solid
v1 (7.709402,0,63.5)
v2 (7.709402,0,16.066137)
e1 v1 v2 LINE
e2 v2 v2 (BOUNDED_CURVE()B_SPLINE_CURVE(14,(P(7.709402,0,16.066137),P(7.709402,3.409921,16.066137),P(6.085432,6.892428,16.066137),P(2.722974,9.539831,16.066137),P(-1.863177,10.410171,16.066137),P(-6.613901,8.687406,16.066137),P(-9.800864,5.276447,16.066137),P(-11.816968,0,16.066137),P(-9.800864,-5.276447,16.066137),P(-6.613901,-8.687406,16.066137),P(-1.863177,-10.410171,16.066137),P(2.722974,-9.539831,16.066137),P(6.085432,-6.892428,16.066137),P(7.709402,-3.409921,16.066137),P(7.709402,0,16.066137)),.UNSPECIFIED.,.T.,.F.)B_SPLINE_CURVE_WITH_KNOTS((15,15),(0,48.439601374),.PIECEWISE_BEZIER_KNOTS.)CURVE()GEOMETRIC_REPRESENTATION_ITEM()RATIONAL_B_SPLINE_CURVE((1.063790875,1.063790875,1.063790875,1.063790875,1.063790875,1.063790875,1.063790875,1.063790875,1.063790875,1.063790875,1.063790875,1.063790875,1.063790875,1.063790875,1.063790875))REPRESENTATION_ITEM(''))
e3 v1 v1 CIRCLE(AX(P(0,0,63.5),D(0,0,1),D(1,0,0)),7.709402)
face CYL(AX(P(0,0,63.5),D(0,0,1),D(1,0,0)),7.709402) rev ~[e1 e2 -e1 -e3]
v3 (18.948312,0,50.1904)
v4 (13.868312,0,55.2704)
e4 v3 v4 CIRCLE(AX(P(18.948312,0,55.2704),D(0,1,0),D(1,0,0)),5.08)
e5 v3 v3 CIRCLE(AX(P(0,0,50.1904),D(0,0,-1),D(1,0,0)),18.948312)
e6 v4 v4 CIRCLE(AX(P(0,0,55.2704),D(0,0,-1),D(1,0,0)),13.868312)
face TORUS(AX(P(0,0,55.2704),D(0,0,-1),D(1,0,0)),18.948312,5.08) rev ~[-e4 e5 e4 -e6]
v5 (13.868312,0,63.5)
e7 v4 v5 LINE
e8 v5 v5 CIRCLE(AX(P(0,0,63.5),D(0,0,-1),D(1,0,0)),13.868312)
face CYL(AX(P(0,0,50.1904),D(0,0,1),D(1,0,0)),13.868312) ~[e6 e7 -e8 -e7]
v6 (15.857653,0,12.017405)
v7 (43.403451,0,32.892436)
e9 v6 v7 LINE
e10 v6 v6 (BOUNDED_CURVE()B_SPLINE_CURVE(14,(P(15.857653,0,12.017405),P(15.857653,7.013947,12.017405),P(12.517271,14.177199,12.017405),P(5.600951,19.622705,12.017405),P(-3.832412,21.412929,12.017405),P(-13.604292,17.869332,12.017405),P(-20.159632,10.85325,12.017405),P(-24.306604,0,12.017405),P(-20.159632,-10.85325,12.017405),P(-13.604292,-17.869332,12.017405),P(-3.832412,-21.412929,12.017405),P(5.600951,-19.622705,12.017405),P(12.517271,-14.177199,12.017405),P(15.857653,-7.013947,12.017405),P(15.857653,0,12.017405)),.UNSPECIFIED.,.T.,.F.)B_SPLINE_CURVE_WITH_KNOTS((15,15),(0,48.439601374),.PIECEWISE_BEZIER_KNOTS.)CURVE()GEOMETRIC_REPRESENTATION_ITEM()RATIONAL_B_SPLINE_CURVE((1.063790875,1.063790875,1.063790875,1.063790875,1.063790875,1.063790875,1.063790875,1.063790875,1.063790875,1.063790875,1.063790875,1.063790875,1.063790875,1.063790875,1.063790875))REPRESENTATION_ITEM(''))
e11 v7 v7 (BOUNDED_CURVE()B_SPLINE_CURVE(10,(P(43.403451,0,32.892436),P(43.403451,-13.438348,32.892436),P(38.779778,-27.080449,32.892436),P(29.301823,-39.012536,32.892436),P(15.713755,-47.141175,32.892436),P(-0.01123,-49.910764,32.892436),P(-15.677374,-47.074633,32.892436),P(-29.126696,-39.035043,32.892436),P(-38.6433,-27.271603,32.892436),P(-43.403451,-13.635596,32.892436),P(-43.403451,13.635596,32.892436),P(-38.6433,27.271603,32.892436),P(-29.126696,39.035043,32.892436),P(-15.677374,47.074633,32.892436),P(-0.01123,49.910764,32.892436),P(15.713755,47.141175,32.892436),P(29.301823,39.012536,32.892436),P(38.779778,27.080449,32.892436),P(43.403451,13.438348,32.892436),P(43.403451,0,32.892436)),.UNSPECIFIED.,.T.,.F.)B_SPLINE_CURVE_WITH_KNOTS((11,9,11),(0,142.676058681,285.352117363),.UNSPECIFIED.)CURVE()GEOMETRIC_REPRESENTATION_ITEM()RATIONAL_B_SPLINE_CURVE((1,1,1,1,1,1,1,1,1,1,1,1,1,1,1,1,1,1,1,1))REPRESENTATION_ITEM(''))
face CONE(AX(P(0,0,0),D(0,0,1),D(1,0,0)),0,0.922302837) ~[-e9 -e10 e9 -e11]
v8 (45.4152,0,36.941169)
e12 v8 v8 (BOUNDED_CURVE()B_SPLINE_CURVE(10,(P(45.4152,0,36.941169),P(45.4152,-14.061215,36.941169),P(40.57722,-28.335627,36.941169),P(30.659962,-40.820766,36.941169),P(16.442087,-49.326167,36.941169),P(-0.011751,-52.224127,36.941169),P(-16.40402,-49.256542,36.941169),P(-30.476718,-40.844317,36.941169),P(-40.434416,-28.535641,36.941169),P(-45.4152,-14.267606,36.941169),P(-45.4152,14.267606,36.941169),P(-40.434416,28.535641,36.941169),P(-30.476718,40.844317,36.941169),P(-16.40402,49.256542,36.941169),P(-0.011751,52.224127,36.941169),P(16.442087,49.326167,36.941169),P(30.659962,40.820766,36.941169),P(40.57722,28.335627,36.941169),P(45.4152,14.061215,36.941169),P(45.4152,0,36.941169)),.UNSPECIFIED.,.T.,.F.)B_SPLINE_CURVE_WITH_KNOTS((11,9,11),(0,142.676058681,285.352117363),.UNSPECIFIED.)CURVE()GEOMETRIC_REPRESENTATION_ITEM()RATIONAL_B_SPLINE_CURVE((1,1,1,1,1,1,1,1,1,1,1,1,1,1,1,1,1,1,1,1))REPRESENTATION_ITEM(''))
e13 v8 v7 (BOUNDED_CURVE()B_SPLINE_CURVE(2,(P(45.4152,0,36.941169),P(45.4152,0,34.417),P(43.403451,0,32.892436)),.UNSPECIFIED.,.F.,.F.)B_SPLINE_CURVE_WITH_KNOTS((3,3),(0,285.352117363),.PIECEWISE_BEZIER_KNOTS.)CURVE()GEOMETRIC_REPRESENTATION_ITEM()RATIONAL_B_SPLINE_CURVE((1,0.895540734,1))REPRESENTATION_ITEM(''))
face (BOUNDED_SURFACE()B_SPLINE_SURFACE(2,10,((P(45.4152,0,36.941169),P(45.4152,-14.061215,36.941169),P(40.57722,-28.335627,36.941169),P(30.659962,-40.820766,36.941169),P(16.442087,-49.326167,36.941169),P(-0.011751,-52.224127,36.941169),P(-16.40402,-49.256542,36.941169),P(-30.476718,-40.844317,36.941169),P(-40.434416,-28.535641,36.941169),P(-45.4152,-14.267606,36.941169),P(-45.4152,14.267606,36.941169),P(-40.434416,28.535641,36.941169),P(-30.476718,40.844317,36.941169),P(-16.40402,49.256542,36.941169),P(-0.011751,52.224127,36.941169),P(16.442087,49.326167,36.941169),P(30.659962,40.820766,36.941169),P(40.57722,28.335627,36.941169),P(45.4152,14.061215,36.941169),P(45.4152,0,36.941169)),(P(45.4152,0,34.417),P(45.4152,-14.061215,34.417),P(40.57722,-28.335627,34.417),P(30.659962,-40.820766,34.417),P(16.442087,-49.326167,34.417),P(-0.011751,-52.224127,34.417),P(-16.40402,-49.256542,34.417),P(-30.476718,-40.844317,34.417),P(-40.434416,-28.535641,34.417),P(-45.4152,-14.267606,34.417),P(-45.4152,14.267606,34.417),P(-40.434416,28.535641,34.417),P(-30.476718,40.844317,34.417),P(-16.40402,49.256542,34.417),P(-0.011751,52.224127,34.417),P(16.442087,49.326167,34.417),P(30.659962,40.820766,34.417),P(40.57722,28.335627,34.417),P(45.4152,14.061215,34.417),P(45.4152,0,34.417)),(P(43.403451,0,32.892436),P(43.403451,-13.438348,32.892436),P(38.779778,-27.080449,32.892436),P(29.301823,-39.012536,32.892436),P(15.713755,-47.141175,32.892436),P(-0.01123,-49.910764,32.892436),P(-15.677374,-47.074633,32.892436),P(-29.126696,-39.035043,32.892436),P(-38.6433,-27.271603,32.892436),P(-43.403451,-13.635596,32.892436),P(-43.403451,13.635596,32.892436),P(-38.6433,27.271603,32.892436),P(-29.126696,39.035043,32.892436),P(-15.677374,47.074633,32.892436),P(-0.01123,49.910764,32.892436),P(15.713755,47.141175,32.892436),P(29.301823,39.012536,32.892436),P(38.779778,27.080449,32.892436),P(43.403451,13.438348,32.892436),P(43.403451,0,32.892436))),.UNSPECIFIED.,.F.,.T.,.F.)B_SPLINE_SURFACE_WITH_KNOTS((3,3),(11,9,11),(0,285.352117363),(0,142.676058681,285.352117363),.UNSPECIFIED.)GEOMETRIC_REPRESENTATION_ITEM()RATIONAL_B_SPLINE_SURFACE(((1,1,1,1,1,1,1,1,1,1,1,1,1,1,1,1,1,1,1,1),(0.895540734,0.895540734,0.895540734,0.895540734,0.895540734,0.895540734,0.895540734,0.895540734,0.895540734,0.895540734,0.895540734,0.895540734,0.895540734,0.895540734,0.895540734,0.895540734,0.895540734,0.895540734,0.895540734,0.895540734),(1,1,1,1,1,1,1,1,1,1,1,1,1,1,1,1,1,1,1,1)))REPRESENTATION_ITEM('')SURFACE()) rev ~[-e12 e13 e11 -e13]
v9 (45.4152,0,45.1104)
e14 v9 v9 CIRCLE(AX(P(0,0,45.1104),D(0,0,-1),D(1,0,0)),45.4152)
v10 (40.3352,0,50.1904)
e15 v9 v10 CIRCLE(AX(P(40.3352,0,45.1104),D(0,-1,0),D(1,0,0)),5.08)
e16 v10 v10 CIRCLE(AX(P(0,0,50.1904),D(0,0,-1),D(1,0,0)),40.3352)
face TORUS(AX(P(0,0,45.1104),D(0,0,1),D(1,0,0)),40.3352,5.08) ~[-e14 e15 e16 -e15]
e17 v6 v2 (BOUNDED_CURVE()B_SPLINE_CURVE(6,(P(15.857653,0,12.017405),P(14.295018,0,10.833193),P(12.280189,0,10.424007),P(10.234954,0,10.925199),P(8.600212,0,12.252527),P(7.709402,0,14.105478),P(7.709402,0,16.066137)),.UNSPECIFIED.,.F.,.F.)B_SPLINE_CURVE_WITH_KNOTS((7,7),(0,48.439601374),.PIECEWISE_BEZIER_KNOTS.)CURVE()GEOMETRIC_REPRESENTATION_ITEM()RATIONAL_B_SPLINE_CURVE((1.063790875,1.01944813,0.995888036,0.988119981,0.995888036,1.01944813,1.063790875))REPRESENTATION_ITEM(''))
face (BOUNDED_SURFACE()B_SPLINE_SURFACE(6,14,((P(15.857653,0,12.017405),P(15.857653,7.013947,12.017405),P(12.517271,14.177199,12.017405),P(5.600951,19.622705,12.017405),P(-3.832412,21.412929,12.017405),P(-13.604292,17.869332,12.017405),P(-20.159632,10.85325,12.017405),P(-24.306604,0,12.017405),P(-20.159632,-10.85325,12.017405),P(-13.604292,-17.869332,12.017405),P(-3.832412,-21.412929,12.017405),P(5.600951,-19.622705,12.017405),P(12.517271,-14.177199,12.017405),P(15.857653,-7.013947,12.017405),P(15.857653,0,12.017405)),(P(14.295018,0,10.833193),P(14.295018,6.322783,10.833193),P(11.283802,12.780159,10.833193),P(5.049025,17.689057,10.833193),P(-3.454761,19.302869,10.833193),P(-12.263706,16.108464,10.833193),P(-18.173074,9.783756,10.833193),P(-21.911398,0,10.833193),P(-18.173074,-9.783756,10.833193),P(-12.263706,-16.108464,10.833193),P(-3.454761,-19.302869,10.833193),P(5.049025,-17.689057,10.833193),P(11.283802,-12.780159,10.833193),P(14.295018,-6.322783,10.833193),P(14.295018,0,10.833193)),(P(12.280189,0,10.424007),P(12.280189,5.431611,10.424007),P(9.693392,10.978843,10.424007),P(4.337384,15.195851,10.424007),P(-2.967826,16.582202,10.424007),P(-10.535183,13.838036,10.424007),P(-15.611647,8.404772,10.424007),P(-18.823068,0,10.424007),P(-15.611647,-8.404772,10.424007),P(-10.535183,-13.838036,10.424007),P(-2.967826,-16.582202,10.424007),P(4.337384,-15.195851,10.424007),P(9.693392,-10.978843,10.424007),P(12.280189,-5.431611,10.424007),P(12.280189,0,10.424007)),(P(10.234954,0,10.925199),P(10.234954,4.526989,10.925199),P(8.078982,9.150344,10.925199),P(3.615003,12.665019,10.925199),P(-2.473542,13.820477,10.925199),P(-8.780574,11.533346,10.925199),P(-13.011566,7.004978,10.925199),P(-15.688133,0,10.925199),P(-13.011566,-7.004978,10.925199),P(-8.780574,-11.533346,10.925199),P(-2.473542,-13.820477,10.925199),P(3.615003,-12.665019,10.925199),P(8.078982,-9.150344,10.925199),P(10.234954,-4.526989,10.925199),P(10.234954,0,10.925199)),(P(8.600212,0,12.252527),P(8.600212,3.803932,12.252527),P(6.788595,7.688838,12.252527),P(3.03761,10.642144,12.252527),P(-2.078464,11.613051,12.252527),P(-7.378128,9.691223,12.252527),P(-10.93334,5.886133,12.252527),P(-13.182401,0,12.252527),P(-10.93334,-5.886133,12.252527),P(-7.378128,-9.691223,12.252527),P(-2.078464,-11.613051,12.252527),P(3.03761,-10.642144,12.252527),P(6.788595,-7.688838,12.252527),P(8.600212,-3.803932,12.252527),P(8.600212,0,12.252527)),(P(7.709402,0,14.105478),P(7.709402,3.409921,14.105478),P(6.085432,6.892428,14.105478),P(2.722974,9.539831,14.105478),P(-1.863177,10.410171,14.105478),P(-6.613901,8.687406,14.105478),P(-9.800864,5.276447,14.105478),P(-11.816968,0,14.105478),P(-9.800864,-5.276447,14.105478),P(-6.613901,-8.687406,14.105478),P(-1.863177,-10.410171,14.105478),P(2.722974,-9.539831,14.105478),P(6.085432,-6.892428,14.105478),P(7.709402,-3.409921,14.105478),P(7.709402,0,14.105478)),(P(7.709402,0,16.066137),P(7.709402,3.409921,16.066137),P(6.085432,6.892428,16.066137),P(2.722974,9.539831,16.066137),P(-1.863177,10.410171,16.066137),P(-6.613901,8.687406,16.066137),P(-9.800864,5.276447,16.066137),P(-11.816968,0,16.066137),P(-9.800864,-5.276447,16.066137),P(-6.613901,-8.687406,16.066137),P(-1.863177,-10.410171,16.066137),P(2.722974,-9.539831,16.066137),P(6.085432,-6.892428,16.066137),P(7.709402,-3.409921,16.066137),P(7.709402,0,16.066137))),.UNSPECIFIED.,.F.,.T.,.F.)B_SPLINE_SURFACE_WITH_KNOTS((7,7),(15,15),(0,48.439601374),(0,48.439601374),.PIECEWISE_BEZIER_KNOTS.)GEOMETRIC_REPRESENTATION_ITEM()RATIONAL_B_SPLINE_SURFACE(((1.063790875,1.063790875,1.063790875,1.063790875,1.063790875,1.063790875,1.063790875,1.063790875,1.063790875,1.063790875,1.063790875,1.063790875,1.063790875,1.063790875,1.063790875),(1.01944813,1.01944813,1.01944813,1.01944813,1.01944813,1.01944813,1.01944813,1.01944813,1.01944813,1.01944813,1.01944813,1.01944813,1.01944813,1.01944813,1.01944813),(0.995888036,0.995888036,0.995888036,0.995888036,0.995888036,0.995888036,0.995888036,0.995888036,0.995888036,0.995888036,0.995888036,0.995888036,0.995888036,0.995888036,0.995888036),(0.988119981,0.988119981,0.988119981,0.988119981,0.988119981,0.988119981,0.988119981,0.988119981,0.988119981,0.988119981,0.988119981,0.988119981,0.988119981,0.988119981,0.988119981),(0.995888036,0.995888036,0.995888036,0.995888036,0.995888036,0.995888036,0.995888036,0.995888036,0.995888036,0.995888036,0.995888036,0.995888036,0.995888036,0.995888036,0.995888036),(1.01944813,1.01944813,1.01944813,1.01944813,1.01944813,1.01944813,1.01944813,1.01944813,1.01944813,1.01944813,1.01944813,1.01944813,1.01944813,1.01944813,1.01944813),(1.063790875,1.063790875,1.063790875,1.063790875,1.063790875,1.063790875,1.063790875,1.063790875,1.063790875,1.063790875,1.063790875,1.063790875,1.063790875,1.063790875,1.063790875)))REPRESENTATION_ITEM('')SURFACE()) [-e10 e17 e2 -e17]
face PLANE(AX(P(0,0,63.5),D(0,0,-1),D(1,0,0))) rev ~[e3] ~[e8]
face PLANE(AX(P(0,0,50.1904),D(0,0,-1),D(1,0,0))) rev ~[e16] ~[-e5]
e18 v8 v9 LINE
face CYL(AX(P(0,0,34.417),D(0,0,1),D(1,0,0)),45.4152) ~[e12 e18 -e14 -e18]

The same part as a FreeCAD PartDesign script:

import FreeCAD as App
import Part
import Sketcher
Q = App.Units.Quantity


def edges_at(feature, points):
    """Names of the edges that pass closest to the given points."""
    edges = feature.Shape.Edges
    near = lambda p: min(range(len(edges)), key=lambda i: edges[i].distToShape(Part.Vertex(*p))[0])
    return sorted({f"Edge{near(p) + 1}" for p in points})

doc = App.newDocument("Part")
body = doc.addObject("PartDesign::Body", "Body")

sketch1 = body.newObject("Sketcher::SketchObject", "Sketch")
sketch1.AttachmentSupport = (doc.getObject("XZ_Plane"), [""])
sketch1.MapMode = "FlatFace"
sketch1.addGeometry([
    Part.LineSegment(App.Vector(0, 64, 0), App.Vector(0, 0, 0)),
    Part.LineSegment(App.Vector(0, 0, 0), App.Vector(45, 34, 0)),
    Part.LineSegment(App.Vector(45, 34, 0), App.Vector(45, 50, 0)),
    Part.LineSegment(App.Vector(45, 50, 0), App.Vector(14, 50, 0)),
    Part.LineSegment(App.Vector(14, 50, 0), App.Vector(14, 64, 0)),
    Part.LineSegment(App.Vector(14, 64, 0), App.Vector(0, 64, 0)),
], False)
sketch1.addConstraint([
    Sketcher.Constraint("Coincident", 0, 2, 1, 1),
    Sketcher.Constraint("Coincident", 1, 2, 2, 1),
    Sketcher.Constraint("Coincident", 2, 2, 3, 1),
    Sketcher.Constraint("Coincident", 3, 2, 4, 1),
    Sketcher.Constraint("Coincident", 4, 2, 5, 1),
    Sketcher.Constraint("Coincident", 5, 2, 0, 1),
    Sketcher.Constraint("Vertical", 0),
    Sketcher.Constraint("Vertical", 2),
    Sketcher.Constraint("Horizontal", 3),
    Sketcher.Constraint("Vertical", 4),
    Sketcher.Constraint("Horizontal", 5),
    Sketcher.Constraint("Coincident", 0, 2, -1, 1),
    Sketcher.Constraint("DistanceY", 0, 2, 0, 1, Q("2.5 in")),
    Sketcher.Constraint("DistanceY", 2, 1, 2, 2, Q("0.621 in")),
    Sketcher.Constraint("DistanceY", 4, 1, 4, 2, Q("0.524 in")),
    Sketcher.Constraint("DistanceX", -1, 1, 1, 2, Q("1.788 in")),
    Sketcher.Constraint("DistanceX", 3, 2, 3, 1, 31.546888),
])
revolution = body.newObject("PartDesign::Revolution", "Revolution")
revolution.Profile = sketch1
revolution.ReferenceAxis = (sketch1, ["V_Axis"])
revolution.Angle = 360

sketch2 = body.newObject("Sketcher::SketchObject", "Sketch001")
sketch2.AttachmentSupport = (doc.getObject("XY_Plane"), [""])
sketch2.MapMode = "FlatFace"
sketch2.AttachmentOffset = App.Placement(App.Vector(0, 0, 2.5 * 25.4), App.Rotation())
sketch2.addGeometry(Part.Circle(App.Vector(0, 0, 0), App.Vector(0, 0, 1), 8), False)
sketch2.addConstraint([
    Sketcher.Constraint("Coincident", 0, 3, -1, 1),
    Sketcher.Constraint("Diameter", 0, 15.418804),
])
pocket1 = body.newObject("PartDesign::Pocket", "Pocket")
pocket1.Profile = sketch2
pocket1.Length = Q("3.5 in")
doc.recompute()

fillet = body.newObject("PartDesign::Fillet", "Fillet")
fillet.Base = (pocket1, edges_at(pocket1, [(-45.415, 0, 50.19), (-13.868, 0, 50.19)]))
fillet.Radius = Q("0.2 in")
doc.recompute()

fillet2 = body.newObject("PartDesign::Fillet", "Fillet001")
fillet2.Base = (fillet, edges_at(fillet, [(-7.709, 0, 5.842), (26.562, 0, 20.13), (-45.415, 0, 34.417)]))
fillet2.Radius = Q("0.2 in")

doc.recompute()
